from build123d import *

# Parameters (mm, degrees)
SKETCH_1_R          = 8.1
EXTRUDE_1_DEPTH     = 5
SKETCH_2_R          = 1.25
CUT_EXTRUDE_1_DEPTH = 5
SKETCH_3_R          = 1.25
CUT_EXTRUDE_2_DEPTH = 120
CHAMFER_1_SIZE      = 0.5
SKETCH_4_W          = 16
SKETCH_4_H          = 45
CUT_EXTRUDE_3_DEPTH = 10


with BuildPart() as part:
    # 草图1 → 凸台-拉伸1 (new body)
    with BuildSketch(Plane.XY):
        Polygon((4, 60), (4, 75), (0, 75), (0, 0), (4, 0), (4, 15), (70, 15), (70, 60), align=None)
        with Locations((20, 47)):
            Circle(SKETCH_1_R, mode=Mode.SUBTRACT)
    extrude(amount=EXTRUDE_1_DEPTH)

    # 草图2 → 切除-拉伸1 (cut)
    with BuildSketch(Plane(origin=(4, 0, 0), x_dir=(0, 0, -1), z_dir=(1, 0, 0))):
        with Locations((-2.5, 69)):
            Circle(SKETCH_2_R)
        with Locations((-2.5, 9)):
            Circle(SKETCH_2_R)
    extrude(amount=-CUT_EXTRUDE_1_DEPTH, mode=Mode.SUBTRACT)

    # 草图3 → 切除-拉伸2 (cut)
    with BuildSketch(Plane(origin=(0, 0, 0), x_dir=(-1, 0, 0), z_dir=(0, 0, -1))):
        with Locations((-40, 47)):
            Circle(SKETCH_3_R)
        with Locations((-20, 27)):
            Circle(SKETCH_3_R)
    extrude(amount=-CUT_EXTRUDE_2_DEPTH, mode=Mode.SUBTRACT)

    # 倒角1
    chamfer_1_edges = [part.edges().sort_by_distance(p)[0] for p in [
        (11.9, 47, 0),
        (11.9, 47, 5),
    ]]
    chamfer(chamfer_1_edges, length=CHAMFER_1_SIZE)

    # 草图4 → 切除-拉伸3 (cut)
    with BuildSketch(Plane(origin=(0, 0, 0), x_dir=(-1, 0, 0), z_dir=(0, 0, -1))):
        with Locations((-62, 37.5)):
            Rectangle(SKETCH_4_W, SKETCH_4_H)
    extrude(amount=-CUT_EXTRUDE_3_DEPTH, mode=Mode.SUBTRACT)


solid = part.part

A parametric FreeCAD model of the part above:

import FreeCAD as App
import Part
import Sketcher
from FreeCAD import Vector
Q = App.Units.Quantity


def edges_at(feature, points):
    """Names of the edges that pass closest to the given points."""
    edges = feature.Shape.Edges
    near = lambda p: min(range(len(edges)), key=lambda i: edges[i].distToShape(Part.Vertex(*p))[0])
    return sorted({f"Edge{near(p) + 1}" for p in points})


def add_polygon(sketch, points):
    """Adds a closed chain of lines whose ends are joined by coincident constraints."""
    first, n = sketch.GeometryCount, len(points)
    for a, b in zip(points, points[1:] + points[:1]):
        sketch.addGeometry(Part.LineSegment(App.Vector(*a, 0), App.Vector(*b, 0)), False)
    for i in range(n):
        sketch.addConstraint(Sketcher.Constraint("Coincident", first + i, 2, first + (i + 1) % n, 1))

doc = App.newDocument("Part")
params = doc.addObject("Spreadsheet::Sheet", "Params")
for row, (alias, value) in enumerate([
    ("sketch1_diameter", "16.2 mm"),
    ("sketch1_width", "4 mm"),
    ("sketch1_width2", "66 mm"),
    ("sketch1_height", "15 mm"),
    ("sketch1_height2", "75 mm"),
    ("pad1_length", "5 mm"),
    ("sketch2_diameter", "2.5 mm"),
    ("pocket1_length", "5 mm"),
    ("sketch3_diameter", "2.5 mm"),
    ("pocket2_length", "120 mm"),
    ("chamfer_size", "0.5 mm"),
    ("sketch4_width", "16 mm"),
    ("sketch4_height", "45 mm"),
    ("pocket3_length", "10 mm"),
], start=1):
    params.set(f"A{row}", alias)
    params.set(f"B{row}", "=" + value)
    params.setAlias(f"B{row}", alias)

body = doc.addObject("PartDesign::Body", "Body")

sketch1 = doc.addObject("Sketcher::SketchObject", "Sketch")
body.addObject(sketch1)
sketch1.AttachmentSupport = (doc.XY_Plane, [""])
sketch1.MapMode = "FlatFace"
add_polygon(sketch1, [(4, 60), (4, 75), (0, 75), (0, 0), (4, 0), (4, 15), (70, 15), (70, 60)])
sketch1.addGeometry(Part.Circle(Vector(20, 47, 0), Vector(0, 0, 1), 8.1), False)
sketch1.addConstraint([
    Sketcher.Constraint("Vertical", 0),
    Sketcher.Constraint("Horizontal", 1),
    Sketcher.Constraint("Vertical", 2),
    Sketcher.Constraint("Horizontal", 3),
    Sketcher.Constraint("Vertical", 4),
    Sketcher.Constraint("Horizontal", 5),
    Sketcher.Constraint("Vertical", 6),
    Sketcher.Constraint("Horizontal", 7),
    Sketcher.Constraint("Coincident", 2, 2, -1, 1),
    Sketcher.Constraint("Vertical", 0, 2, 3, 2),
    Sketcher.Constraint("Equal", 0, 4),
    Sketcher.Constraint("Diameter", 8, Q("16.2 mm")),
    Sketcher.Constraint("DistanceX", 1, 2, 1, 1, Q("4 mm")),
    Sketcher.Constraint("DistanceX", 5, 1, 5, 2, Q("66 mm")),
    Sketcher.Constraint("DistanceY", 0, 1, 0, 2, Q("15 mm")),
    Sketcher.Constraint("DistanceY", 2, 2, 2, 1, Q("75 mm")),
    Sketcher.Constraint("DistanceX", -1, 1, 8, 3, Q("20 mm")),
    Sketcher.Constraint("DistanceY", -1, 1, 8, 3, Q("47 mm")),
])
sketch1.setExpression("Constraints[19]", "Params.sketch1_diameter")
sketch1.setExpression("Constraints[20]", "Params.sketch1_width")
sketch1.setExpression("Constraints[21]", "Params.sketch1_width2")
sketch1.setExpression("Constraints[22]", "Params.sketch1_height")
sketch1.setExpression("Constraints[23]", "Params.sketch1_height2")
pad1 = doc.addObject("PartDesign::Pad", "Pad")
body.addObject(pad1)
pad1.Profile = sketch1
pad1.setExpression("Length", "Params.pad1_length")

sketch2 = doc.addObject("Sketcher::SketchObject", "Sketch001")
body.addObject(sketch2)
sketch2.AttachmentSupport = (doc.YZ_Plane, [""])
sketch2.MapMode = "FlatFace"
sketch2.AttachmentOffset = App.Placement(Vector(0, 0, 4), App.Rotation())
sketch2.addGeometry([
    Part.Circle(Vector(69, 2.5, 0), Vector(0, 0, 1), 1.25),
    Part.Circle(Vector(9, 2.5, 0), Vector(0, 0, 1), 1.25),
], False)
sketch2.addConstraint([
    Sketcher.Constraint("Equal", 0, 1),
    Sketcher.Constraint("Horizontal", 0, 3, 1, 3),
    Sketcher.Constraint("Diameter", 0, Q("2.5 mm")),
    Sketcher.Constraint("DistanceX", -1, 1, 0, 3, Q("69 mm")),
    Sketcher.Constraint("DistanceX", -1, 1, 1, 3, Q("9 mm")),
    Sketcher.Constraint("DistanceY", -1, 1, 0, 3, Q("2.5 mm")),
])
sketch2.setExpression("Constraints[2]", "Params.sketch2_diameter")
pocket1 = doc.addObject("PartDesign::Pocket", "Pocket")
body.addObject(pocket1)
pocket1.Profile = sketch2
pocket1.setExpression("Length", "Params.pocket1_length")

sketch3 = doc.addObject("Sketcher::SketchObject", "Sketch002")
body.addObject(sketch3)
sketch3.AttachmentSupport = (doc.XY_Plane, [""])
sketch3.MapMode = "FlatFace"
sketch3.addGeometry([
    Part.Circle(Vector(40, 47, 0), Vector(0, 0, 1), 1.25),
    Part.Circle(Vector(20, 27, 0), Vector(0, 0, 1), 1.25),
], False)
sketch3.addConstraint([
    Sketcher.Constraint("Equal", 0, 1),
    Sketcher.Constraint("Diameter", 0, Q("2.5 mm")),
    Sketcher.Constraint("DistanceX", -1, 1, 0, 3, Q("40 mm")),
    Sketcher.Constraint("DistanceY", -1, 1, 0, 3, Q("47 mm")),
    Sketcher.Constraint("DistanceX", -1, 1, 1, 3, Q("20 mm")),
    Sketcher.Constraint("DistanceY", -1, 1, 1, 3, Q("27 mm")),
])
sketch3.setExpression("Constraints[1]", "Params.sketch3_diameter")
pocket2 = doc.addObject("PartDesign::Pocket", "Pocket001")
body.addObject(pocket2)
pocket2.Profile = sketch3
pocket2.setExpression("Length", "Params.pocket2_length")
pocket2.Reversed = True
doc.recompute()

chamfer = doc.addObject("PartDesign::Chamfer", "Chamfer")
body.addObject(chamfer)
chamfer.Base = (pocket2, edges_at(pocket2, [(11.9, 47, 0), (11.9, 47, 5)]))
chamfer.setExpression("Size", "Params.chamfer_size")

sketch4 = doc.addObject("Sketcher::SketchObject", "Sketch003")
body.addObject(sketch4)
sketch4.AttachmentSupport = (doc.XY_Plane, [""])
sketch4.MapMode = "FlatFace"
add_polygon(sketch4, [(70, 60), (70, 15), (54, 15), (54, 60)])
sketch4.addConstraint([
    Sketcher.Constraint("Vertical", 0),
    Sketcher.Constraint("Horizontal", 1),
    Sketcher.Constraint("Vertical", 2),
    Sketcher.Constraint("Horizontal", 3),
    Sketcher.Constraint("DistanceX", 1, 2, 1, 1, Q("16 mm")),
    Sketcher.Constraint("DistanceY", 0, 2, 0, 1, Q("45 mm")),
    Sketcher.Constraint("DistanceX", -1, 1, 0, 2, Q("70 mm")),
    Sketcher.Constraint("DistanceY", -1, 1, 0, 2, Q("15 mm")),
])
sketch4.setExpression("Constraints[8]", "Params.sketch4_width")
sketch4.setExpression("Constraints[9]", "Params.sketch4_height")
pocket3 = doc.addObject("PartDesign::Pocket", "Pocket002")
body.addObject(pocket3)
pocket3.Profile = sketch4
pocket3.setExpression("Length", "Params.pocket3_length")
pocket3.Reversed = True

doc.recompute()
